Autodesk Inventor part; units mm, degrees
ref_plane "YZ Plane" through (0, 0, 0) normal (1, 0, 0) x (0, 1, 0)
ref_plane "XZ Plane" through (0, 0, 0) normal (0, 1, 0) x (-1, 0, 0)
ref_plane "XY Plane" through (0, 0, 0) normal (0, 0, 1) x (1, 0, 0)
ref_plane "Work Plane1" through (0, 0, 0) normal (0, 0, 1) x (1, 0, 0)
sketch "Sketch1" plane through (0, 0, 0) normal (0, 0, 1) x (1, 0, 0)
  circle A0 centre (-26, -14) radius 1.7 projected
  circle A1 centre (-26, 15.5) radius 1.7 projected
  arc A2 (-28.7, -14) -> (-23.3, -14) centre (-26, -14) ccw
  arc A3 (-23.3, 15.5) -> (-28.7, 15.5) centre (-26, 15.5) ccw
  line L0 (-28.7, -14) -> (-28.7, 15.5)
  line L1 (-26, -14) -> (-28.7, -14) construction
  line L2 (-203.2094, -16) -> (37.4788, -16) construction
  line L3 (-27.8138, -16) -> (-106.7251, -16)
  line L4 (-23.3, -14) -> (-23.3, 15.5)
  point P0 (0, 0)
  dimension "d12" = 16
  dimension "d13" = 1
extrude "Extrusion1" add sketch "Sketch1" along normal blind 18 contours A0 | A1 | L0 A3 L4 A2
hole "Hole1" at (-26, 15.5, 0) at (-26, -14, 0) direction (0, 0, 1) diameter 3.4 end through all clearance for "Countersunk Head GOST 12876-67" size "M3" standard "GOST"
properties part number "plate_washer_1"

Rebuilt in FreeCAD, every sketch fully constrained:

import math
import FreeCAD as App
import Part
import Sketcher

doc = App.newDocument("Part")
body = doc.addObject("PartDesign::Body", "Body")

# Sketch on XY plane
sketch1 = body.newObject("Sketcher::SketchObject", "Sketch")
sketch1.AttachmentSupport = (doc.getObject("XY_Plane"), [""])
sketch1.MapMode = "FlatFace"
sketch1.addGeometry([
    Part.LineSegment(App.Vector(-28.7, 15.5, 0), App.Vector(-28.7, -14, 0)),
    Part.ArcOfCircle(Part.Circle(App.Vector(-26, -14, 0), App.Vector(0, 0, 1), 2.7), math.radians(180), math.radians(360)),
    Part.LineSegment(App.Vector(-23.3, -14, 0), App.Vector(-23.3, 15.5, 0)),
    Part.ArcOfCircle(Part.Circle(App.Vector(-26, 15.5, 0), App.Vector(0, 0, 1), 2.7), math.radians(0), math.radians(180)),
], False)
sketch1.addConstraint([
    Sketcher.Constraint("Tangent", 0, 2, 1, 1),
    Sketcher.Constraint("Tangent", 1, 2, 2, 1),
    Sketcher.Constraint("Tangent", 2, 2, 3, 1),
    Sketcher.Constraint("Tangent", 3, 2, 0, 1),
    Sketcher.Constraint("Vertical", 0),
    Sketcher.Constraint("Vertical", 2),
    Sketcher.Constraint("Radius", 1, 2.7),
    Sketcher.Constraint("DistanceY", 0, 2, 0, 1, 29.5),
    Sketcher.Constraint("DistanceX", 1, 3, -1, 1, 26.0),
    Sketcher.Constraint("DistanceY", 1, 3, -1, 1, 14.0),
])
pad1 = body.newObject("PartDesign::Pad", "Pad")
pad1.Profile = sketch1
pad1.Length = 18

# Sketch on XY plane
sketch2 = body.newObject("Sketcher::SketchObject", "Sketch001")
sketch2.AttachmentSupport = (doc.getObject("XY_Plane"), [""])
sketch2.MapMode = "FlatFace"
sketch2.addGeometry([
    Part.Circle(App.Vector(-26, 15.5, 0), App.Vector(0, 0, 1), 1.7),
    Part.Circle(App.Vector(-26, -14, 0), App.Vector(0, 0, 1), 1.7),
], False)
sketch2.addConstraint([
    Sketcher.Constraint("Equal", 0, 1),
    Sketcher.Constraint("Vertical", 0, 3, 1, 3),
    Sketcher.Constraint("Diameter", 0, 3.4),
    Sketcher.Constraint("DistanceX", 0, 3, -1, 1, 26.0),
    Sketcher.Constraint("DistanceY", 1, 3, -1, 1, 14.0),
    Sketcher.Constraint("DistanceY", -1, 1, 0, 3, 15.5),
])
doc.recompute()
hole = body.newObject("PartDesign::Hole", "Hole")
hole.Profile = sketch2
hole.ThreadType = "None"
hole.Diameter = 3.4
hole.DepthType = "ThroughAll"
hole.Reversed = True

doc.recompute()
